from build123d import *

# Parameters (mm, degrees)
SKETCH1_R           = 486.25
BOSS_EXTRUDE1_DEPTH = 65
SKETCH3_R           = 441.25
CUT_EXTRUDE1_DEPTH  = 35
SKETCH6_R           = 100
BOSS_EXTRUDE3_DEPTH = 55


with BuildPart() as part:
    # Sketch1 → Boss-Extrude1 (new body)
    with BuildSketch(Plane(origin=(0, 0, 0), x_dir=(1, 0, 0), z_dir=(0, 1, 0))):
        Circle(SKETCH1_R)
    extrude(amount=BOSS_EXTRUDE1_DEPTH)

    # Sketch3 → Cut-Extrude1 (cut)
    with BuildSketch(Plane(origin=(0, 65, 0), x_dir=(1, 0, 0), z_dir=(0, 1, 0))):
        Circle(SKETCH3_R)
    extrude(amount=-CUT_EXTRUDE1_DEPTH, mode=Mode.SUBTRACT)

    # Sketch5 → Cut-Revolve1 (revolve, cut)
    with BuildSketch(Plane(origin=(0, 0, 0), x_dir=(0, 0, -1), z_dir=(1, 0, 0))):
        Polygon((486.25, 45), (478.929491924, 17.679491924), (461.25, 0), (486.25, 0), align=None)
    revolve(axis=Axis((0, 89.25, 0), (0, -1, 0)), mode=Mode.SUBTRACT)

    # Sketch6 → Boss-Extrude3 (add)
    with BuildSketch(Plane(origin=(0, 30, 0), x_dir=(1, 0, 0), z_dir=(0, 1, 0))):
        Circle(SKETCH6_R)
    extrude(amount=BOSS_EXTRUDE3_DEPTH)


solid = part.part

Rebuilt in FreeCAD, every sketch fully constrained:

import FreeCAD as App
import Part
import Sketcher
from FreeCAD import Vector
Q = App.Units.Quantity


def add_polygon(sketch, points):
    """Adds a closed chain of lines whose ends are joined by coincident constraints."""
    first, n = sketch.GeometryCount, len(points)
    for a, b in zip(points, points[1:] + points[:1]):
        sketch.addGeometry(Part.LineSegment(App.Vector(*a, 0), App.Vector(*b, 0)), False)
    for i in range(n):
        sketch.addConstraint(Sketcher.Constraint("Coincident", first + i, 2, first + (i + 1) % n, 1))

doc = App.newDocument("Part")
body = doc.addObject("PartDesign::Body", "Body")

# Sketch on XZ plane
sketch1 = doc.addObject("Sketcher::SketchObject", "Sketch")
body.addObject(sketch1)
sketch1.AttachmentSupport = (doc.XZ_Plane, [""])
sketch1.MapMode = "FlatFace"
sketch1.addGeometry(Part.Circle(Vector(0, 0, 0), Vector(0, 0, 1), 486), False)
sketch1.addConstraint([
    Sketcher.Constraint("Coincident", 0, 3, -1, 1),
    Sketcher.Constraint("Diameter", 0, Q("972.5 mm")),
])
pad1 = doc.addObject("PartDesign::Pad", "Pad")
body.addObject(pad1)
pad1.Profile = sketch1
pad1.Length = 65
pad1.Reversed = True

# Sketch on XZ plane
sketch2 = doc.addObject("Sketcher::SketchObject", "Sketch001")
body.addObject(sketch2)
sketch2.AttachmentSupport = (doc.XZ_Plane, [""])
sketch2.MapMode = "FlatFace"
sketch2.AttachmentOffset = App.Placement(Vector(0, 0, -65), App.Rotation())
sketch2.addGeometry(Part.Circle(Vector(0, 0, 0), Vector(0, 0, 1), 441), False)
sketch2.addConstraint([
    Sketcher.Constraint("Coincident", 0, 3, -1, 1),
    Sketcher.Constraint("Diameter", 0, Q("882.5 mm")),
])
pocket1 = doc.addObject("PartDesign::Pocket", "Pocket")
body.addObject(pocket1)
pocket1.Profile = sketch2
pocket1.Length = 35
pocket1.Reversed = True

# Sketch on YZ plane
sketch3 = doc.addObject("Sketcher::SketchObject", "Sketch002")
body.addObject(sketch3)
sketch3.AttachmentSupport = (doc.YZ_Plane, [""])
sketch3.MapMode = "FlatFace"
add_polygon(sketch3, [(45, -486), (18, -479), (0, -461), (0, -486)])  # lines 0-3
sketch3.addConstraint([
    Sketcher.Constraint("Vertical", 2),
    Sketcher.Constraint("Horizontal", 3),
    Sketcher.Constraint("PointOnObject", 1, 2, -2),
    Sketcher.Constraint("DistanceX", 3, 1, 3, 2, Q("45 mm")),
    Sketcher.Constraint("DistanceY", 2, 2, 2, 1, Q("25 mm")),
    Sketcher.Constraint("Angle", 0, Q("165 deg")),
    Sketcher.Constraint("Angle", 1, Q("135 deg")),
    Sketcher.Constraint("DistanceY", 1, 2, -1, 1, Q("461.25 mm")),
])
groove = doc.addObject("PartDesign::Groove", "Groove")
body.addObject(groove)
groove.Profile = sketch3
groove.ReferenceAxis = (sketch3, ["H_Axis"])
groove.Angle = 360

# Sketch on XZ plane
sketch4 = doc.addObject("Sketcher::SketchObject", "Sketch003")
body.addObject(sketch4)
sketch4.AttachmentSupport = (doc.XZ_Plane, [""])
sketch4.MapMode = "FlatFace"
sketch4.AttachmentOffset = App.Placement(Vector(0, 0, -30), App.Rotation())
sketch4.addGeometry(Part.Circle(Vector(0, 0, 0), Vector(0, 0, 1), 100), False)
sketch4.addConstraint([
    Sketcher.Constraint("Coincident", 0, 3, -1, 1),
    Sketcher.Constraint("Diameter", 0, Q("200 mm")),
])
pad2 = doc.addObject("PartDesign::Pad", "Pad001")
body.addObject(pad2)
pad2.Profile = sketch4
pad2.Length = 55
pad2.Reversed = True

doc.recompute()
